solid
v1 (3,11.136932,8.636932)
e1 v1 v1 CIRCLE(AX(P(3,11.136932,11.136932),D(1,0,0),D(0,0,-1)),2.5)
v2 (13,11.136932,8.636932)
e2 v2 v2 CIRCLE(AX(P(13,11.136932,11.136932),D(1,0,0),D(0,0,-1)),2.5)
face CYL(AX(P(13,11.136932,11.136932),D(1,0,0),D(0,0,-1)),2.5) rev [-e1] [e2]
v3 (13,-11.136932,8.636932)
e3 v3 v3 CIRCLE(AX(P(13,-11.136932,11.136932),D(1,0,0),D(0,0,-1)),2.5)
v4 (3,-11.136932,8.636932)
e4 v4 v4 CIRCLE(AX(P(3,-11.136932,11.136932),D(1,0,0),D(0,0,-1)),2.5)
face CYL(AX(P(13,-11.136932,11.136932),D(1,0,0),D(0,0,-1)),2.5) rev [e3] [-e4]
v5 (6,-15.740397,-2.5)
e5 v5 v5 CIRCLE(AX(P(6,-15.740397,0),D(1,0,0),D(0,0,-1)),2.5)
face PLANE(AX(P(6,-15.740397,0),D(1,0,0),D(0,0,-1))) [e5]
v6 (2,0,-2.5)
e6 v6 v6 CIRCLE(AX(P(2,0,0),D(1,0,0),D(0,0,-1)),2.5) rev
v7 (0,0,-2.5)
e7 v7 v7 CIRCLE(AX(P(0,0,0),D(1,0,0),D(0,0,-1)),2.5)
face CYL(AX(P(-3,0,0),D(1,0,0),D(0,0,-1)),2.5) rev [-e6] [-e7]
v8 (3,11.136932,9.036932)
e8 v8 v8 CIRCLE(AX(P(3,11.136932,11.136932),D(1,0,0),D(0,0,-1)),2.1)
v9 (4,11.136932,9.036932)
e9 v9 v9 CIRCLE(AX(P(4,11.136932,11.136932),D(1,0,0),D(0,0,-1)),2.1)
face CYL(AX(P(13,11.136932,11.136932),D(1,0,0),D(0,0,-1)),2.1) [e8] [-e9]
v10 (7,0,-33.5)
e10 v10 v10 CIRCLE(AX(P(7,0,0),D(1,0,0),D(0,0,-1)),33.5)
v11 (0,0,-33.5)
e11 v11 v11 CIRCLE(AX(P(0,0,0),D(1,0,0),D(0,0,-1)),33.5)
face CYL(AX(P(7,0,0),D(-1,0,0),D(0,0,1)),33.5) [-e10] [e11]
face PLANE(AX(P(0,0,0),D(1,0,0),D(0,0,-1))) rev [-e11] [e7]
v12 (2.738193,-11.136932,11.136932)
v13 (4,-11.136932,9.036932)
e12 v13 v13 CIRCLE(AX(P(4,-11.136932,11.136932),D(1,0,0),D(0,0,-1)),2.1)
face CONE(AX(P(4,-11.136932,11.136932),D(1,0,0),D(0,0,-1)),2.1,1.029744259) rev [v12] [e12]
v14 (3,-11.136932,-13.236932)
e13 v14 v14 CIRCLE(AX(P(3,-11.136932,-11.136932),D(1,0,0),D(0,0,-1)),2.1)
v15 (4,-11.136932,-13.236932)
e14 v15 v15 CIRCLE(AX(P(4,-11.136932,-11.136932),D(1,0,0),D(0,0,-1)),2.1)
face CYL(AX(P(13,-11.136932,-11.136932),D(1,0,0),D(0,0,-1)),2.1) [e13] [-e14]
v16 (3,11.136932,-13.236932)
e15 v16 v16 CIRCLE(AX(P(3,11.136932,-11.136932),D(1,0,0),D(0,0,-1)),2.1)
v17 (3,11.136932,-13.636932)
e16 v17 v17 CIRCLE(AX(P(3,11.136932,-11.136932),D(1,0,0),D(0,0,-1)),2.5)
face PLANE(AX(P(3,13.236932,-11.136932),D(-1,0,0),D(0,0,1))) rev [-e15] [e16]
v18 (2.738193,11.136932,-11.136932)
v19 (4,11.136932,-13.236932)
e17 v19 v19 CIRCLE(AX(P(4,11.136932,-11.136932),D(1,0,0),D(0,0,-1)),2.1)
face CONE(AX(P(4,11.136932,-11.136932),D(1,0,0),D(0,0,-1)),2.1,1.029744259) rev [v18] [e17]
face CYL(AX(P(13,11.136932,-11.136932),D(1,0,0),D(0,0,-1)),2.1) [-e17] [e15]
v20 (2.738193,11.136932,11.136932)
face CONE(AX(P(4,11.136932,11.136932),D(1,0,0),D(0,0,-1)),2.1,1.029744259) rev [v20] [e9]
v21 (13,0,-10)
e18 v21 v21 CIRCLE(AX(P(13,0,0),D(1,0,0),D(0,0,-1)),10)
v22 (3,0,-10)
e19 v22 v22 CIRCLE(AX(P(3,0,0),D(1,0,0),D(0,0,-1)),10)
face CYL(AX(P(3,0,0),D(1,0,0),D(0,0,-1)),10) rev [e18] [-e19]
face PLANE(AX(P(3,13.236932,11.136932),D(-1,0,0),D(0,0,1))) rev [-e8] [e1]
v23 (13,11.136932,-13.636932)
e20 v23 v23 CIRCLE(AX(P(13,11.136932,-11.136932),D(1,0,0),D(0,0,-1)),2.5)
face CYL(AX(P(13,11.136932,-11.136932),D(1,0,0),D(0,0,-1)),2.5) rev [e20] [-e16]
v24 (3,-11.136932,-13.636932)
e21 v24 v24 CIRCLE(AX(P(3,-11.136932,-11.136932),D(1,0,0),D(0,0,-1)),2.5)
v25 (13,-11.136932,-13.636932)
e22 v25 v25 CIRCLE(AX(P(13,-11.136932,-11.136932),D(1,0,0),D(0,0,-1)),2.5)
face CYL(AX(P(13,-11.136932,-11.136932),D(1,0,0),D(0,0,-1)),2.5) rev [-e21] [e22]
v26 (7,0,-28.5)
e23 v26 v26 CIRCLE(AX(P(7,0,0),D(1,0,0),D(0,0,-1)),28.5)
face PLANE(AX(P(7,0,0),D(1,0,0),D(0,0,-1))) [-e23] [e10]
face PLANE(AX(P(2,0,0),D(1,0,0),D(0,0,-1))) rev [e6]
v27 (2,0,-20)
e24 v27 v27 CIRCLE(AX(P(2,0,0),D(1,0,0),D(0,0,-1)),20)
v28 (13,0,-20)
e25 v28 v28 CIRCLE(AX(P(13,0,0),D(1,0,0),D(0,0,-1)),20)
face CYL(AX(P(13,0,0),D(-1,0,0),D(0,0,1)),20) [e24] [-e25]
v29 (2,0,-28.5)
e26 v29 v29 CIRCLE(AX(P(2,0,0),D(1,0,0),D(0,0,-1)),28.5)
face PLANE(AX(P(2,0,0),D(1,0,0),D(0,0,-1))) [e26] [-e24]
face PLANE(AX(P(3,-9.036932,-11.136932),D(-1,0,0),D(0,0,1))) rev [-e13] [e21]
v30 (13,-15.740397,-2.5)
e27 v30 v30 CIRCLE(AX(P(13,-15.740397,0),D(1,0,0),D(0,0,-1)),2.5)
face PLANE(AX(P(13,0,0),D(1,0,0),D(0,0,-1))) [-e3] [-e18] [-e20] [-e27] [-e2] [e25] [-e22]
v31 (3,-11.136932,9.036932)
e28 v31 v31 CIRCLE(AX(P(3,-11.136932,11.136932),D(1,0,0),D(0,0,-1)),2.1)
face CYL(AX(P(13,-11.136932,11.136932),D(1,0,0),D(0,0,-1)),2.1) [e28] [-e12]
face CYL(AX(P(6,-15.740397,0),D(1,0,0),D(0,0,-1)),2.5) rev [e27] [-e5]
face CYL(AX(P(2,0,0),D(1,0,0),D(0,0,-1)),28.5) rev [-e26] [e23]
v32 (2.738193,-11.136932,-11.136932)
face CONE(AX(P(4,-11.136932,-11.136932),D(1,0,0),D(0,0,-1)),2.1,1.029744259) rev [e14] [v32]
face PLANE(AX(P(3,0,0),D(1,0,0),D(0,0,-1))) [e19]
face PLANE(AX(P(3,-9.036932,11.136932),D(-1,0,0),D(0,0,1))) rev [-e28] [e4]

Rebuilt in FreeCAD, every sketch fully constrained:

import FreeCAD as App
import Part
import Sketcher

V = App.Vector
Q = App.Units.Quantity

doc = App.newDocument("Part")
body = doc.addObject("PartDesign::Body", "Body")

sketch1 = body.newObject("Sketcher::SketchObject", "Sketch")
sketch1.AttachmentSupport = (doc.getObject("YZ_Plane"), [""])
sketch1.MapMode = "FlatFace"
sketch1.addGeometry(Part.Circle(V(0, 0, 0), V(0, 0, 1), 34), False)
sketch1.addConstraint([
    Sketcher.Constraint("Coincident", 0, 3, -1, 1),
    Sketcher.Constraint("Diameter", 0, Q("67 mm")),
])
pad1 = body.newObject("PartDesign::Pad", "Pad")
pad1.Profile = sketch1
pad1.Length = 7

sketch2 = body.newObject("Sketcher::SketchObject", "Sketch001")
sketch2.AttachmentSupport = (doc.getObject("YZ_Plane"), [""])
sketch2.MapMode = "FlatFace"
sketch2.AttachmentOffset = App.Placement(V(0, 0, 7), App.Rotation())
sketch2.addGeometry(Part.Circle(V(0, 0, 0), V(0, 0, 1), 28), False)
sketch2.addConstraint([
    Sketcher.Constraint("Coincident", 0, 3, -1, 1),
    Sketcher.Constraint("Diameter", 0, Q("57 mm")),
])
pocket1 = body.newObject("PartDesign::Pocket", "Pocket")
pocket1.Profile = sketch2
pocket1.Length = 5

sketch3 = body.newObject("Sketcher::SketchObject", "Sketch002")
sketch3.AttachmentSupport = (doc.getObject("YZ_Plane"), [""])
sketch3.MapMode = "FlatFace"
sketch3.AttachmentOffset = App.Placement(V(0, 0, 2), App.Rotation())
sketch3.addGeometry(Part.Circle(V(0, 0, 0), V(0, 0, 1), 2.5), False)
sketch3.addConstraint([
    Sketcher.Constraint("Coincident", 0, 3, -1, 1),
    Sketcher.Constraint("Diameter", 0, Q("5 mm")),
])
pocket2 = body.newObject("PartDesign::Pocket", "Pocket001")
pocket2.Profile = sketch3
pocket2.Length = 5

sketch4 = body.newObject("Sketcher::SketchObject", "Sketch003")
sketch4.AttachmentSupport = (doc.getObject("YZ_Plane"), [""])
sketch4.MapMode = "FlatFace"
sketch4.AttachmentOffset = App.Placement(V(0, 0, 2), App.Rotation())
sketch4.addGeometry(Part.Circle(V(0, 0, 0), V(0, 0, 1), 20), False)
sketch4.addConstraint([
    Sketcher.Constraint("Coincident", 0, 3, -1, 1),
    Sketcher.Constraint("Diameter", 0, Q("40 mm")),
])
pad2 = body.newObject("PartDesign::Pad", "Pad001")
pad2.Profile = sketch4
pad2.Length = 11

sketch5 = body.newObject("Sketcher::SketchObject", "Sketch004")
sketch5.AttachmentSupport = (doc.getObject("YZ_Plane"), [""])
sketch5.MapMode = "FlatFace"
sketch5.AttachmentOffset = App.Placement(V(0, 0, 13), App.Rotation())
sketch5.addGeometry(Part.Circle(V(0, 0, 0), V(0, 0, 1), 10), False)
sketch5.addConstraint([
    Sketcher.Constraint("Coincident", 0, 3, -1, 1),
    Sketcher.Constraint("Diameter", 0, Q("20 mm")),
])
pocket3 = body.newObject("PartDesign::Pocket", "Pocket002")
pocket3.Profile = sketch5
pocket3.Length = 10

sketch6 = body.newObject("Sketcher::SketchObject", "Sketch005")
sketch6.AttachmentSupport = (doc.getObject("XZ_Plane"), [""])
sketch6.MapMode = "FlatFace"
sketch6.AttachmentOffset = App.Placement(V(0, 0, -11.136932), App.Rotation())
sketch6.addGeometry([
    Part.LineSegment(V(2.74, 11.14, 0), V(13, 11.14, 0)),
    Part.LineSegment(V(13, 11.14, 0), V(13, 8.64, 0)),
    Part.LineSegment(V(13, 8.64, 0), V(3, 8.64, 0)),
    Part.LineSegment(V(3, 8.64, 0), V(3, 9.04, 0)),
    Part.LineSegment(V(3, 9.04, 0), V(4, 9.04, 0)),
    Part.LineSegment(V(4, 9.04, 0), V(2.74, 11.14, 0)),
], False)
sketch6.addGeometry(Part.LineSegment(V(13, 11.14, 0), V(2.74, 11.14, 0)), True)
sketch6.addConstraint([
    Sketcher.Constraint("Coincident", 0, 2, 1, 1),
    Sketcher.Constraint("Coincident", 1, 2, 2, 1),
    Sketcher.Constraint("Coincident", 2, 2, 3, 1),
    Sketcher.Constraint("Coincident", 3, 2, 4, 1),
    Sketcher.Constraint("Coincident", 4, 2, 5, 1),
    Sketcher.Constraint("Coincident", 5, 2, 0, 1),
    Sketcher.Constraint("Horizontal", 0),
    Sketcher.Constraint("Vertical", 1),
    Sketcher.Constraint("Horizontal", 2),
    Sketcher.Constraint("Vertical", 3),
    Sketcher.Constraint("Horizontal", 4),
    Sketcher.Constraint("Horizontal", 6),
    Sketcher.Constraint("Coincident", 6, 1, 0, 2),
    Sketcher.Constraint("Equal", 0, 6),
    Sketcher.Constraint("DistanceX", 2, 2, 2, 1, Q("10 mm")),
    Sketcher.Constraint("DistanceX", 4, 1, 4, 2, Q("1 mm")),
    Sketcher.Constraint("Angle", 5, Q("121 deg")),
    Sketcher.Constraint("DistanceY", 1, 2, 1, 1, Q("2.5 mm")),
    Sketcher.Constraint("DistanceY", 3, 1, 3, 2, Q("0.4 mm")),
    Sketcher.Constraint("DistanceX", -1, 1, 0, 2, Q("13 mm")),
    Sketcher.Constraint("DistanceY", -1, 1, 0, 2, Q("11.136932 mm")),
])
groove = body.newObject("PartDesign::Groove", "Groove")
groove.Profile = sketch6
groove.ReferenceAxis = (sketch6, ["Axis0"])
groove.Angle = 360
doc.recompute()

datumline = body.newObject("PartDesign::Line", "DatumLine")
datumline.Placement = App.Placement(V(0, 0, 0), App.Rotation(V(0, 0, 1), V(0, -0.707106781, -0.707106781)))
linearpattern = body.newObject("PartDesign::LinearPattern", "LinearPattern")
linearpattern.Originals = [groove]
linearpattern.Direction = (datumline, [""])
linearpattern.Mode = "offset"
linearpattern.Offset = 31.5
linearpattern.Occurrences = 2
body.Tip = linearpattern
doc.recompute()

linearpattern2 = body.newObject("PartDesign::LinearPattern", "LinearPattern001")
linearpattern2.Originals = [groove]
linearpattern2.Direction = (doc.getObject("Y_Axis"), [""])
linearpattern2.Mode = "offset"
linearpattern2.Offset = 22.273864
linearpattern2.Occurrences = 2
linearpattern2.Reversed = True
body.Tip = linearpattern2
doc.recompute()

linearpattern3 = body.newObject("PartDesign::LinearPattern", "LinearPattern002")
linearpattern3.Originals = [groove]
linearpattern3.Direction = (doc.getObject("Z_Axis"), [""])
linearpattern3.Mode = "offset"
linearpattern3.Offset = 22.273864
linearpattern3.Occurrences = 2
linearpattern3.Reversed = True
body.Tip = linearpattern3

sketch7 = body.newObject("Sketcher::SketchObject", "Sketch006")
sketch7.AttachmentSupport = (doc.getObject("YZ_Plane"), [""])
sketch7.MapMode = "FlatFace"
sketch7.AttachmentOffset = App.Placement(V(0, 0, 13), App.Rotation())
sketch7.addGeometry(Part.Circle(V(-15.7, 0, 0), V(0, 0, 1), 2.5), False)
sketch7.addConstraint([
    Sketcher.Constraint("PointOnObject", 0, 3, -1),
    Sketcher.Constraint("Diameter", 0, Q("5 mm")),
    Sketcher.Constraint("DistanceX", 0, 3, -1, 1, Q("15.740397 mm")),
])
pocket4 = body.newObject("PartDesign::Pocket", "Pocket003")
pocket4.Profile = sketch7
pocket4.Length = 7

doc.recompute()
